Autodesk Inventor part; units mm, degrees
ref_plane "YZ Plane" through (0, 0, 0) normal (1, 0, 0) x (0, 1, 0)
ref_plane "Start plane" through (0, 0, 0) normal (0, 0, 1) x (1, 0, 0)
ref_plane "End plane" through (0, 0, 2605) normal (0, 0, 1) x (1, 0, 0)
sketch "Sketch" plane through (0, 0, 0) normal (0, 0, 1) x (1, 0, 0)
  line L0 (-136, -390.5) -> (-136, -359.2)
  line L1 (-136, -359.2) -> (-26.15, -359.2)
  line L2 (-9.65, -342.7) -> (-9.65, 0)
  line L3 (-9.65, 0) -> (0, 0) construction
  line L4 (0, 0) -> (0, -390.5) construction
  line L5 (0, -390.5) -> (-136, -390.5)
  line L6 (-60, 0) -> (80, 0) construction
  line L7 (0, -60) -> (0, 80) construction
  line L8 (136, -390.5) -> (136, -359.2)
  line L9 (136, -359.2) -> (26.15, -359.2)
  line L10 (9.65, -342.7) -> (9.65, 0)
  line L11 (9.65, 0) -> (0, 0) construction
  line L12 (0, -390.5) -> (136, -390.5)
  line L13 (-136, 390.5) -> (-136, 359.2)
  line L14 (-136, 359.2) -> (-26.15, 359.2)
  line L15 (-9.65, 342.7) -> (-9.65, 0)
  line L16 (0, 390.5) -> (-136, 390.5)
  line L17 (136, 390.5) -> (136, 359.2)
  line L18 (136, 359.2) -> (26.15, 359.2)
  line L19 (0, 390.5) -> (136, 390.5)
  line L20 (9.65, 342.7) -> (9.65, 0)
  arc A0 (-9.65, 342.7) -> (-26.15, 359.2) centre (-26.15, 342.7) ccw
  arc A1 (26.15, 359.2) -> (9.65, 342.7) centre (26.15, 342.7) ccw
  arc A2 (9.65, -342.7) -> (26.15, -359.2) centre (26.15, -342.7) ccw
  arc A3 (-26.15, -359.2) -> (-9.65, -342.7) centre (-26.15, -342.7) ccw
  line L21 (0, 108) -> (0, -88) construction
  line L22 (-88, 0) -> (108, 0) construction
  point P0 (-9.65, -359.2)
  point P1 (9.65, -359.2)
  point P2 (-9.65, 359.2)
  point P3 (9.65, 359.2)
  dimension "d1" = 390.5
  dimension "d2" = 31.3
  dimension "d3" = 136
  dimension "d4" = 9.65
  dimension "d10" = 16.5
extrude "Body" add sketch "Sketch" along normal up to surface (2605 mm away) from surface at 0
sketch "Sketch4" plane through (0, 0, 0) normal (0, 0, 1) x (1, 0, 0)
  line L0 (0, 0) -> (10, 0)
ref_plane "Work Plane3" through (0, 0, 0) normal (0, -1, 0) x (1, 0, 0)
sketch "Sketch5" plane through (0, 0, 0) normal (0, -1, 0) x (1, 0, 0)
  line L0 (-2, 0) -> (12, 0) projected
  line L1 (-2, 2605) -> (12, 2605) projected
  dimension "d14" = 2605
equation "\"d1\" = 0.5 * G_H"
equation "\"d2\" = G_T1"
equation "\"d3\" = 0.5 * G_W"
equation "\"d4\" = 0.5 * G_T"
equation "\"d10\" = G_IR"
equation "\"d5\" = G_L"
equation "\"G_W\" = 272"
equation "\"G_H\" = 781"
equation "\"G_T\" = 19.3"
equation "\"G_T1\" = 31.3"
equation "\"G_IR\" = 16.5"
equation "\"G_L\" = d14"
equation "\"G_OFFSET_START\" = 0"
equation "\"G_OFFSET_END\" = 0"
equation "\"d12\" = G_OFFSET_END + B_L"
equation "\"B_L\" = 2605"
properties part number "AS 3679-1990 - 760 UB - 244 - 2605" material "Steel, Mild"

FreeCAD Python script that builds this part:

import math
import FreeCAD as App
import Part
import Sketcher
from FreeCAD import Vector

doc = App.newDocument("Part")
body = doc.addObject("PartDesign::Body", "Body")

# Sketch on XY plane
sketch1 = doc.addObject("Sketcher::SketchObject", "Sketch")
body.addObject(sketch1)
sketch1.AttachmentSupport = (doc.XY_Plane, [""])
sketch1.MapMode = "FlatFace"
sketch1.addGeometry([
    Part.LineSegment(Vector(-136, -359, 0), Vector(-136, -390, 0)),  # 0
    Part.LineSegment(Vector(-136, -390, 0), Vector(136, -390, 0)),  # 1
    Part.LineSegment(Vector(136, -390, 0), Vector(136, -359, 0)),  # 2
    Part.LineSegment(Vector(136, -359, 0), Vector(26, -359, 0)),  # 3
    Part.ArcOfCircle(Part.Circle(Vector(26, -343, 0), Vector(0, 0, 1), 16), math.radians(180), math.radians(270)),  # 4
    Part.LineSegment(Vector(10, -343, 0), Vector(10, 343, 0)),  # 5
    Part.ArcOfCircle(Part.Circle(Vector(26, 343, 0), Vector(0, 0, 1), 16), math.radians(90), math.radians(180)),  # 6
    Part.LineSegment(Vector(26, 359, 0), Vector(136, 359, 0)),  # 7
    Part.LineSegment(Vector(136, 359, 0), Vector(136, 390, 0)),  # 8
    Part.LineSegment(Vector(136, 390, 0), Vector(-136, 390, 0)),  # 9
    Part.LineSegment(Vector(-136, 390, 0), Vector(-136, 359, 0)),  # 10
    Part.LineSegment(Vector(-136, 359, 0), Vector(-26, 359, 0)),  # 11
    Part.ArcOfCircle(Part.Circle(Vector(-26, 343, 0), Vector(0, 0, 1), 16), math.radians(0), math.radians(90)),  # 12
    Part.LineSegment(Vector(-10, 343, 0), Vector(-10, -343, 0)),  # 13
    Part.ArcOfCircle(Part.Circle(Vector(-26, -343, 0), Vector(0, 0, 1), 16), math.radians(-90), math.radians(0)),  # 14
    Part.LineSegment(Vector(-26, -359, 0), Vector(-136, -359, 0)),  # 15
], False)
sketch1.addConstraint([
    Sketcher.Constraint("Coincident", 0, 2, 1, 1),
    Sketcher.Constraint("Coincident", 1, 2, 2, 1),
    Sketcher.Constraint("Coincident", 2, 2, 3, 1),
    Sketcher.Constraint("Tangent", 3, 2, 4, 2),
    Sketcher.Constraint("Tangent", 4, 1, 5, 1),
    Sketcher.Constraint("Tangent", 5, 2, 6, 2),
    Sketcher.Constraint("Tangent", 6, 1, 7, 1),
    Sketcher.Constraint("Coincident", 7, 2, 8, 1),
    Sketcher.Constraint("Coincident", 8, 2, 9, 1),
    Sketcher.Constraint("Coincident", 9, 2, 10, 1),
    Sketcher.Constraint("Coincident", 10, 2, 11, 1),
    Sketcher.Constraint("Tangent", 11, 2, 12, 2),
    Sketcher.Constraint("Tangent", 12, 1, 13, 1),
    Sketcher.Constraint("Tangent", 13, 2, 14, 2),
    Sketcher.Constraint("Tangent", 14, 1, 15, 1),
    Sketcher.Constraint("Coincident", 15, 2, 0, 1),
    Sketcher.Constraint("Vertical", 0),
    Sketcher.Constraint("Horizontal", 1),
    Sketcher.Constraint("Vertical", 2),
    Sketcher.Constraint("Horizontal", 3),
    Sketcher.Constraint("Vertical", 5),
    Sketcher.Constraint("Horizontal", 7),
    Sketcher.Constraint("Vertical", 8),
    Sketcher.Constraint("Horizontal", 9),
    Sketcher.Constraint("Vertical", 10),
    Sketcher.Constraint("Horizontal", 11),
    Sketcher.Constraint("Vertical", 13),
    Sketcher.Constraint("Horizontal", 15),
    Sketcher.Constraint("Equal", 4, 6),
    Sketcher.Constraint("Equal", 6, 12),
    Sketcher.Constraint("Equal", 12, 14),
    Sketcher.Constraint("Symmetric", 4, 3, 12, 3, -1, 1),
    Sketcher.Constraint("Symmetric", 0, 2, 8, 2, -1, 1),
    Sketcher.Constraint("Symmetric", 7, 2, 10, 2, -2),
    Sketcher.Constraint("Symmetric", 2, 2, 15, 2, -2),
    Sketcher.Constraint("Radius", 4, 16.5),
    Sketcher.Constraint("DistanceY", 0, 2, 0, 1, 31.3),
    Sketcher.Constraint("DistanceX", 0, 2, -1, 1, 136.0),
    Sketcher.Constraint("DistanceY", 0, 2, -1, 1, 390.5),
    Sketcher.Constraint("DistanceX", -1, 1, 4, 1, 9.65),
])
pad1 = doc.addObject("PartDesign::Pad", "Pad")
body.addObject(pad1)
pad1.Profile = sketch1
pad1.Length = 2605

doc.recompute()
